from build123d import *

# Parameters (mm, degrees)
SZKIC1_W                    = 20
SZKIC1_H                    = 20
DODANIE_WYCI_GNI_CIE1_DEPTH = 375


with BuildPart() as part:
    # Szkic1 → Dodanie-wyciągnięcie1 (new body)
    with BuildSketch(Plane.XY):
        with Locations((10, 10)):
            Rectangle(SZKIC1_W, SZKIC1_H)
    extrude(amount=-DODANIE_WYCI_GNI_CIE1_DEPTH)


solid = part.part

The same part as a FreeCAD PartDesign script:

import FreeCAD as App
import Part
import Sketcher

V = App.Vector


def add_polygon(sketch, points):
    """Adds a closed chain of lines whose ends are joined by coincident constraints."""
    first, n = sketch.GeometryCount, len(points)
    for a, b in zip(points, points[1:] + points[:1]):
        sketch.addGeometry(Part.LineSegment(App.Vector(*a, 0), App.Vector(*b, 0)), False)
    for i in range(n):
        sketch.addConstraint(Sketcher.Constraint("Coincident", first + i, 2, first + (i + 1) % n, 1))

doc = App.newDocument("Part")
params = doc.addObject("Spreadsheet::Sheet", "Params")
for row, (alias, value) in enumerate([
    ("sketch1_width", "20 mm"),
    ("pad1_length", "375 mm"),
], start=1):
    params.set(f"A{row}", alias)
    params.set(f"B{row}", "=" + value)
    params.setAlias(f"B{row}", alias)

body = doc.addObject("PartDesign::Body", "Body")

sketch1 = body.newObject("Sketcher::SketchObject", "Sketch")
sketch1.AttachmentSupport = (doc.getObject("XY_Plane"), [""])
sketch1.MapMode = "FlatFace"
add_polygon(sketch1, [(0, 20), (0, 0), (20, 0), (20, 20)])
sketch1.addConstraint([
    Sketcher.Constraint("Vertical", 0),
    Sketcher.Constraint("Horizontal", 1),
    Sketcher.Constraint("Vertical", 2),
    Sketcher.Constraint("Horizontal", 3),
    Sketcher.Constraint("Coincident", 0, 2, -1, 1),
    Sketcher.Constraint("Equal", 3, 0),
    Sketcher.Constraint("DistanceX", 1, 1, 1, 2, 20.0),
])
sketch1.setExpression("Constraints[10]", "Params.sketch1_width")
pad1 = body.newObject("PartDesign::Pad", "Pad")
pad1.Profile = sketch1
pad1.setExpression("Length", "Params.pad1_length")
pad1.Reversed = True

doc.recompute()
